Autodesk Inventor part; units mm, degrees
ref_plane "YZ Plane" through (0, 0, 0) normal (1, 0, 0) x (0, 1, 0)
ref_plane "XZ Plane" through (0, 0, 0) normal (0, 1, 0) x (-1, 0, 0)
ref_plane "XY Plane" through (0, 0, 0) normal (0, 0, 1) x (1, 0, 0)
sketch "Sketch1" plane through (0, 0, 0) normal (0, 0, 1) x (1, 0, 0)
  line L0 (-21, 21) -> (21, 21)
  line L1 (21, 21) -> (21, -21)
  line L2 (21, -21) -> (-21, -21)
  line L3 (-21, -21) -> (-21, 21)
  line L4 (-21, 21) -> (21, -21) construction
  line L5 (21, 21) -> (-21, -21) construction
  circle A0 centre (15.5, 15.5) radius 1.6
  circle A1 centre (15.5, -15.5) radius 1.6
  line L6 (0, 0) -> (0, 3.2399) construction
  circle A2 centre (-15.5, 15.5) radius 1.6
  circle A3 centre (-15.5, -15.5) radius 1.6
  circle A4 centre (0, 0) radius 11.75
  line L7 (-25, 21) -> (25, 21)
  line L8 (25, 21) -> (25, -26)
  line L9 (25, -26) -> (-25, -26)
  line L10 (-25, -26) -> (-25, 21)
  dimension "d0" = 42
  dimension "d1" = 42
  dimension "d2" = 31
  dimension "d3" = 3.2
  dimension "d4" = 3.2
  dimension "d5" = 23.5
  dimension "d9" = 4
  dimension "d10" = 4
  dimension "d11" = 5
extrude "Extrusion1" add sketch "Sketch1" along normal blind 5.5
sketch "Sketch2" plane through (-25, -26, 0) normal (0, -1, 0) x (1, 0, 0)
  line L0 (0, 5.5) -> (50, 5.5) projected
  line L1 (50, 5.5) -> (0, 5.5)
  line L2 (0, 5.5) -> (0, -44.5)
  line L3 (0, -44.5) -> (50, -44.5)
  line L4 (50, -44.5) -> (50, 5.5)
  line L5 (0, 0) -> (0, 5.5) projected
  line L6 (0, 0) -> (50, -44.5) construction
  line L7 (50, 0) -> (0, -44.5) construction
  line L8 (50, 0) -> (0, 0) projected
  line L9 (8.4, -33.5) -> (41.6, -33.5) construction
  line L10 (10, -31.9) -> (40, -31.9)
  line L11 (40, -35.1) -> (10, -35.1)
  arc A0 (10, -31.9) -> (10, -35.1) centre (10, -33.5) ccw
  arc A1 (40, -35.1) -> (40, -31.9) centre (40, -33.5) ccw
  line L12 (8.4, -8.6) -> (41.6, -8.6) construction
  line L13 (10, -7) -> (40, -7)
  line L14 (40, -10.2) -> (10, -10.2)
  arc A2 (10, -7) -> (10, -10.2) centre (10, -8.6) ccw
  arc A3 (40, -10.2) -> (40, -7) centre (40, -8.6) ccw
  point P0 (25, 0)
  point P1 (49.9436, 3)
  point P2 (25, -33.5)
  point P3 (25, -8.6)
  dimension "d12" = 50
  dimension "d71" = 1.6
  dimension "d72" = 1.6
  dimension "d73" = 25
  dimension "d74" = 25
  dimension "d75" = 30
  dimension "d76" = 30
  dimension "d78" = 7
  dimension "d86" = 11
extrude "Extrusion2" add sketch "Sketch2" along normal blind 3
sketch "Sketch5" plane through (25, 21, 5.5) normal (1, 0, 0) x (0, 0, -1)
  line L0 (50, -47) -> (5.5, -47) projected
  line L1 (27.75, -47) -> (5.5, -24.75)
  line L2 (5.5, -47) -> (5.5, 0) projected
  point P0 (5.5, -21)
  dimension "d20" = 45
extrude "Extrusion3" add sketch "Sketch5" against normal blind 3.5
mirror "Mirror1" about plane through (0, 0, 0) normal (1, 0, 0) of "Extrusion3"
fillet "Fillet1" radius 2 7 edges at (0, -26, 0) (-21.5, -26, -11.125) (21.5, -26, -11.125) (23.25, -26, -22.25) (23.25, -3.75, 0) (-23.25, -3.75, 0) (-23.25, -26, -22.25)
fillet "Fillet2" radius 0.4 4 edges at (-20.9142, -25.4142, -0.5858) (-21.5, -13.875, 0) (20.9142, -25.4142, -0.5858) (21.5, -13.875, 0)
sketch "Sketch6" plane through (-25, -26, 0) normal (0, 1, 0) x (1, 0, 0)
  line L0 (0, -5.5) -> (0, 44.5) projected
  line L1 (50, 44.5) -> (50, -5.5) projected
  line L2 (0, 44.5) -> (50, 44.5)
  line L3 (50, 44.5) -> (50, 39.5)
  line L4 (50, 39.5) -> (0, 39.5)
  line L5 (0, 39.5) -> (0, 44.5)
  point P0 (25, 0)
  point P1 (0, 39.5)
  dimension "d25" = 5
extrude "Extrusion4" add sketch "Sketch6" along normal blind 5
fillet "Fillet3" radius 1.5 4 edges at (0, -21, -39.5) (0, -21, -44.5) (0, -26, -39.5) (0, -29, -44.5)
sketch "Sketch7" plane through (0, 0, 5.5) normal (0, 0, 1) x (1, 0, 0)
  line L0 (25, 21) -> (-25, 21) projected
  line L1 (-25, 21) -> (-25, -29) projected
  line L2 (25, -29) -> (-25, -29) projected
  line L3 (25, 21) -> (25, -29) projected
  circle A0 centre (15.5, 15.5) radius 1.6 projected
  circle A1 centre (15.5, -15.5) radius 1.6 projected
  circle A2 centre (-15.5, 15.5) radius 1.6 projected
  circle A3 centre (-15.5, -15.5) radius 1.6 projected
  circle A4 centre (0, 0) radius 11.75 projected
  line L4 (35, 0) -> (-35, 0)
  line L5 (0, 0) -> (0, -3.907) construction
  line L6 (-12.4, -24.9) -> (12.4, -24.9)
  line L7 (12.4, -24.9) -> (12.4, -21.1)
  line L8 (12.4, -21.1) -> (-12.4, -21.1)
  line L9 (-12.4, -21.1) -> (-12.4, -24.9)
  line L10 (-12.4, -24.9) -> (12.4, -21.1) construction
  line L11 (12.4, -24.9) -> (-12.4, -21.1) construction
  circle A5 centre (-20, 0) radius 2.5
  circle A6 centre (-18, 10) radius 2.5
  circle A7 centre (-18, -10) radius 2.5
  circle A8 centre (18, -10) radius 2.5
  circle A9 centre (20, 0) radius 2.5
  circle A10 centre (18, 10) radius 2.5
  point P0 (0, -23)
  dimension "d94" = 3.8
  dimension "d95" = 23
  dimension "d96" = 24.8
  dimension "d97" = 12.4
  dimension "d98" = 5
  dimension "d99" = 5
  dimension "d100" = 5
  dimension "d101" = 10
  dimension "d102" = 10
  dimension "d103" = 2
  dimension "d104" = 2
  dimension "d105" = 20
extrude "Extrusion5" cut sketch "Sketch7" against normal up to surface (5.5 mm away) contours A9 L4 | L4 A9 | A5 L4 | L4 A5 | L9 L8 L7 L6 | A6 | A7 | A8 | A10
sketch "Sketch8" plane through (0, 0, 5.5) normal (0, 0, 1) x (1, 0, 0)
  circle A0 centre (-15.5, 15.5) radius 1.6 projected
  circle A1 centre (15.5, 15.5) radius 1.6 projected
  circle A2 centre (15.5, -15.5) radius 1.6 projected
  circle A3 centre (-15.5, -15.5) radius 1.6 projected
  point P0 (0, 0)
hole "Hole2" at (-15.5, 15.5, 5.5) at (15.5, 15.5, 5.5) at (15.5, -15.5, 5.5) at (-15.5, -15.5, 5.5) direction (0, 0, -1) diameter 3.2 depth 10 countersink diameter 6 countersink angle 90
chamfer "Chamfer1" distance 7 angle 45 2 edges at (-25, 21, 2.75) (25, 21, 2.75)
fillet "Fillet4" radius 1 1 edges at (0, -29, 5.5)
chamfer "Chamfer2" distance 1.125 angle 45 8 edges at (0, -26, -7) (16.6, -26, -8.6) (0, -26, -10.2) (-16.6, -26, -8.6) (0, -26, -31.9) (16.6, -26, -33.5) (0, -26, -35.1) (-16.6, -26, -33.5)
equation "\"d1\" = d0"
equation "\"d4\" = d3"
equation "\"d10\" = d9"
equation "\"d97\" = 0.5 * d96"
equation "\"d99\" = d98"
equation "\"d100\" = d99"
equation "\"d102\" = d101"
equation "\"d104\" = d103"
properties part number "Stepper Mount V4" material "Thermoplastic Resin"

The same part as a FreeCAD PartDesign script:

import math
import FreeCAD as App
import Part
import Sketcher
from FreeCAD import Vector


def edges_at(feature, points):
    """Names of the edges that pass closest to the given points."""
    edges = feature.Shape.Edges
    near = lambda p: min(range(len(edges)), key=lambda i: edges[i].distToShape(Part.Vertex(*p))[0])
    return sorted({f"Edge{near(p) + 1}" for p in points})


def add_polygon(sketch, points):
    """Adds a closed chain of lines whose ends are joined by coincident constraints."""
    first, n = sketch.GeometryCount, len(points)
    for a, b in zip(points, points[1:] + points[:1]):
        sketch.addGeometry(Part.LineSegment(App.Vector(*a, 0), App.Vector(*b, 0)), False)
    for i in range(n):
        sketch.addConstraint(Sketcher.Constraint("Coincident", first + i, 2, first + (i + 1) % n, 1))

doc = App.newDocument("Part")
body = doc.addObject("PartDesign::Body", "Body")

# Sketch on XY plane
sketch1 = body.newObject("Sketcher::SketchObject", "Sketch")
sketch1.AttachmentSupport = (doc.getObject("XY_Plane"), [""])
sketch1.MapMode = "FlatFace"
add_polygon(sketch1, [(-25, 21), (-25, -26), (25, -26), (25, 21)])  # lines 0-3
sketch1.addGeometry(Part.Circle(Vector(-15.5, -15.5, 0), Vector(0, 0, 1), 1.6), False)  # 4
sketch1.addGeometry(Part.Circle(Vector(15.5, -15.5, 0), Vector(0, 0, 1), 1.6), False)  # 5
sketch1.addGeometry(Part.Circle(Vector(-15.5, 15.5, 0), Vector(0, 0, 1), 1.6), False)  # 6
sketch1.addGeometry(Part.Circle(Vector(0, 0, 0), Vector(0, 0, 1), 11.8), False)  # 7
sketch1.addGeometry(Part.Circle(Vector(15.5, 15.5, 0), Vector(0, 0, 1), 1.6), False)  # 8
sketch1.addConstraint([
    Sketcher.Constraint("Vertical", 0),
    Sketcher.Constraint("Horizontal", 1),
    Sketcher.Constraint("Vertical", 2),
    Sketcher.Constraint("Horizontal", 3),
    Sketcher.Constraint("Coincident", 7, 3, -1, 1),
    Sketcher.Constraint("Equal", 4, 5),
    Sketcher.Constraint("Equal", 5, 6),
    Sketcher.Constraint("Equal", 6, 8),
    Sketcher.Constraint("Symmetric", 5, 3, 6, 3, -1, 1),
    Sketcher.Constraint("Symmetric", 4, 3, 8, 3, -1, 1),
    Sketcher.Constraint("Symmetric", 4, 3, 5, 3, -2),
    Sketcher.Constraint("Diameter", 4, 3.2),
    Sketcher.Constraint("Diameter", 7, 23.5),
    Sketcher.Constraint("DistanceX", 4, 3, 5, 3, 31.0),
    Sketcher.Constraint("DistanceY", 4, 3, 6, 3, 31.0),
    Sketcher.Constraint("DistanceX", 1, 1, 1, 2, 50.0),
    Sketcher.Constraint("DistanceY", 0, 2, 0, 1, 47.0),
    Sketcher.Constraint("DistanceX", 0, 2, -1, 1, 25.0),
    Sketcher.Constraint("DistanceY", 0, 2, -1, 1, 26.0),
])
pad1 = body.newObject("PartDesign::Pad", "Pad")
pad1.Profile = sketch1
pad1.Length = 5.5

# Sketch on XZ plane
sketch2 = body.newObject("Sketcher::SketchObject", "Sketch001")
sketch2.AttachmentSupport = (doc.getObject("XZ_Plane"), [""])
sketch2.MapMode = "FlatFace"
sketch2.AttachmentOffset = App.Placement(Vector(0, 0, 26), App.Rotation())
add_polygon(sketch2, [(25, 5.5), (-25, 5.5), (-25, -44.5), (25, -44.5)])  # lines 0-3
sketch2.addGeometry(Part.LineSegment(Vector(-15, -7, 0), Vector(15, -7, 0)), False)  # 4
sketch2.addGeometry(Part.ArcOfCircle(Part.Circle(Vector(15, -8.6, 0), Vector(0, 0, 1), 1.6), math.radians(-90), math.radians(90)), False)  # 5
sketch2.addGeometry(Part.LineSegment(Vector(15, -10.2, 0), Vector(-15, -10.2, 0)), False)  # 6
sketch2.addGeometry(Part.ArcOfCircle(Part.Circle(Vector(-15, -8.6, 0), Vector(0, 0, 1), 1.6), math.radians(90), math.radians(270)), False)  # 7
sketch2.addGeometry(Part.ArcOfCircle(Part.Circle(Vector(-15, -33.5, 0), Vector(0, 0, 1), 1.6), math.radians(90), math.radians(270)), False)  # 8
sketch2.addGeometry(Part.LineSegment(Vector(-15, -31.9, 0), Vector(15, -31.9, 0)), False)  # 9
sketch2.addGeometry(Part.ArcOfCircle(Part.Circle(Vector(15, -33.5, 0), Vector(0, 0, 1), 1.6), math.radians(-90), math.radians(90)), False)  # 10
sketch2.addGeometry(Part.LineSegment(Vector(15, -35.1, 0), Vector(-15, -35.1, 0)), False)  # 11
sketch2.addConstraint([
    Sketcher.Constraint("Tangent", 4, 2, 5, 2),
    Sketcher.Constraint("Tangent", 5, 1, 6, 1),
    Sketcher.Constraint("Tangent", 6, 2, 7, 2),
    Sketcher.Constraint("Tangent", 7, 1, 4, 1),
    Sketcher.Constraint("Tangent", 8, 1, 9, 1),
    Sketcher.Constraint("Tangent", 9, 2, 10, 2),
    Sketcher.Constraint("Tangent", 10, 1, 11, 1),
    Sketcher.Constraint("Tangent", 11, 2, 8, 2),
    Sketcher.Constraint("Horizontal", 0),
    Sketcher.Constraint("Vertical", 1),
    Sketcher.Constraint("Horizontal", 2),
    Sketcher.Constraint("Vertical", 3),
    Sketcher.Constraint("Horizontal", 4),
    Sketcher.Constraint("Horizontal", 6),
    Sketcher.Constraint("Horizontal", 9),
    Sketcher.Constraint("Horizontal", 11),
    Sketcher.Constraint("Equal", 7, 8),
    Sketcher.Constraint("Vertical", 7, 3, 8, 3),
    Sketcher.Constraint("Vertical", 5, 3, 10, 3),
    Sketcher.Constraint("Equal", 2, 1),
    Sketcher.Constraint("Radius", 5, 1.6),
    Sketcher.Constraint("DistanceX", 0, 2, 0, 1, 50.0),
    Sketcher.Constraint("DistanceX", 4, 1, 4, 2, 30.0),
    Sketcher.Constraint("DistanceX", 0, 2, -1, 1, 25.0),
    Sketcher.Constraint("DistanceY", 4, 2, -1, 1, 7.0),
    Sketcher.Constraint("DistanceY", 1, 2, 8, 3, 11.0),
    Sketcher.Constraint("DistanceX", -1, 1, 5, 3, 15.0),
    Sketcher.Constraint("DistanceY", 8, 3, -1, 1, 33.5),
])
pad2 = body.newObject("PartDesign::Pad", "Pad001")
pad2.Profile = sketch2
pad2.Length = 3

# Sketch on YZ plane
sketch3 = body.newObject("Sketcher::SketchObject", "Sketch002")
sketch3.AttachmentSupport = (doc.getObject("YZ_Plane"), [""])
sketch3.MapMode = "FlatFace"
sketch3.AttachmentOffset = App.Placement(Vector(0, 0, 25), App.Rotation())
add_polygon(sketch3, [(-26, 0), (-26, -22), (-4, 0)])  # lines 0-2
sketch3.addConstraint([
    Sketcher.Constraint("Vertical", 0),
    Sketcher.Constraint("Horizontal", 2),
    Sketcher.Constraint("PointOnObject", 1, 2, -1),
    Sketcher.Constraint("Equal", 2, 0),
    Sketcher.Constraint("DistanceX", 0, 2, -1, 1, 26.0),
    Sketcher.Constraint("DistanceX", 2, 2, 2, 1, 22.25),
])
pad3 = body.newObject("PartDesign::Pad", "Pad002")
pad3.Profile = sketch3
pad3.Length = 3.5
pad3.Reversed = True
doc.recompute()

mirrored = body.newObject("PartDesign::Mirrored", "Mirrored")
mirrored.Originals = [pad3]
mirrored.MirrorPlane = (doc.getObject("YZ_Plane"), [""])
body.Tip = mirrored
doc.recompute()

fillet = body.newObject("PartDesign::Fillet", "Fillet")
fillet.Base = (mirrored, edges_at(mirrored, [
    (0, -26, 0),
    (-21.5, -26, -11.125),
    (21.5, -26, -11.125),
    (23.25, -26, -22.25),
    (23.25, -3.75, 0),
    (-23.25, -3.75, 0),
    (-23.25, -26, -22.25),
]))
fillet.Radius = 2
doc.recompute()

fillet2 = body.newObject("PartDesign::Fillet", "Fillet001")
fillet2.Base = (fillet, edges_at(fillet, [
    (-20.914, -25.414, -0.586),
    (-21.5, -13.875, 0),
    (20.914, -25.414, -0.586),
    (21.5, -13.875, 0),
]))
fillet2.Radius = 0.4

# Sketch on XZ plane
sketch4 = body.newObject("Sketcher::SketchObject", "Sketch003")
sketch4.AttachmentSupport = (doc.getObject("XZ_Plane"), [""])
sketch4.MapMode = "FlatFace"
sketch4.AttachmentOffset = App.Placement(Vector(0, 0, 26), App.Rotation())
add_polygon(sketch4, [(-25, -44), (-25, -40), (25, -40), (25, -44)])  # lines 0-3
sketch4.addConstraint([
    Sketcher.Constraint("Vertical", 0),
    Sketcher.Constraint("Horizontal", 1),
    Sketcher.Constraint("Vertical", 2),
    Sketcher.Constraint("Horizontal", 3),
    Sketcher.Constraint("DistanceY", 0, 1, 0, 2, 5.0),
    Sketcher.Constraint("DistanceX", 1, 1, 1, 2, 50.0),
    Sketcher.Constraint("DistanceX", 0, 2, -1, 1, 25.0),
    Sketcher.Constraint("DistanceY", 0, 2, -1, 1, 39.5),
])
pad4 = body.newObject("PartDesign::Pad", "Pad003")
pad4.Profile = sketch4
pad4.Length = 5
pad4.Reversed = True
doc.recompute()

fillet3 = body.newObject("PartDesign::Fillet", "Fillet002")
fillet3.Base = (pad4, edges_at(pad4, [
    (0, -21, -39.5),
    (0, -21, -44.5),
    (0, -26, -39.5),
    (0, -29, -44.5),
]))
fillet3.Radius = 1.5

# Sketch on XY plane
sketch5 = body.newObject("Sketcher::SketchObject", "Sketch004")
sketch5.AttachmentSupport = (doc.getObject("XY_Plane"), [""])
sketch5.MapMode = "FlatFace"
sketch5.AttachmentOffset = App.Placement(Vector(0, 0, 5.5), App.Rotation())
sketch5.addGeometry(Part.Circle(Vector(20, 0, 0), Vector(0, 0, 1), 2.5), False)  # 0
sketch5.addGeometry(Part.Circle(Vector(-20, 0, 0), Vector(0, 0, 1), 2.5), False)  # 1
add_polygon(sketch5, [(-12.4, -21.1), (-12.4, -24.9), (12.4, -24.9), (12.4, -21.1)])  # lines 2-5
sketch5.addGeometry(Part.Circle(Vector(-18, 10, 0), Vector(0, 0, 1), 2.5), False)  # 6
sketch5.addGeometry(Part.Circle(Vector(-18, -10, 0), Vector(0, 0, 1), 2.5), False)  # 7
sketch5.addGeometry(Part.Circle(Vector(18, -10, 0), Vector(0, 0, 1), 2.5), False)  # 8
sketch5.addGeometry(Part.Circle(Vector(18, 10, 0), Vector(0, 0, 1), 2.5), False)  # 9
sketch5.addConstraint([
    Sketcher.Constraint("Vertical", 2),
    Sketcher.Constraint("Horizontal", 3),
    Sketcher.Constraint("Vertical", 4),
    Sketcher.Constraint("Horizontal", 5),
    Sketcher.Constraint("Equal", 0, 1),
    Sketcher.Constraint("Equal", 1, 6),
    Sketcher.Constraint("Equal", 6, 7),
    Sketcher.Constraint("Equal", 7, 8),
    Sketcher.Constraint("Equal", 8, 9),
    Sketcher.Constraint("Symmetric", 0, 3, 1, 3, -1, 1),
    Sketcher.Constraint("Symmetric", 6, 3, 8, 3, -1, 1),
    Sketcher.Constraint("Symmetric", 7, 3, 9, 3, -1, 1),
    Sketcher.Constraint("Symmetric", 7, 3, 8, 3, -2),
    Sketcher.Constraint("PointOnObject", 0, 3, -1),
    Sketcher.Constraint("Diameter", 0, 5.0),
    Sketcher.Constraint("DistanceX", 3, 1, 3, 2, 24.8),
    Sketcher.Constraint("DistanceY", 2, 2, 2, 1, 3.8),
    Sketcher.Constraint("DistanceX", -1, 1, 0, 3, 20.0),
    Sketcher.Constraint("DistanceY", -1, 1, 6, 3, 10.0),
    Sketcher.Constraint("DistanceX", 1, 3, 6, 3, 2.0),
    Sketcher.Constraint("DistanceX", 2, 2, -1, 1, 12.4),
    Sketcher.Constraint("DistanceY", 2, 2, -1, 1, 24.9),
])
pocket1 = body.newObject("PartDesign::Pocket", "Pocket")
pocket1.Profile = sketch5
pocket1.Length = 5.5

# Sketch on XY plane
sketch6 = body.newObject("Sketcher::SketchObject", "Sketch005")
sketch6.AttachmentSupport = (doc.getObject("XY_Plane"), [""])
sketch6.MapMode = "FlatFace"
sketch6.AttachmentOffset = App.Placement(Vector(0, 0, 5.5), App.Rotation())
sketch6.addGeometry([
    Part.Circle(Vector(-15.5, 15.5, 0), Vector(0, 0, 1), 1.6),
    Part.Circle(Vector(15.5, 15.5, 0), Vector(0, 0, 1), 1.6),
    Part.Circle(Vector(15.5, -15.5, 0), Vector(0, 0, 1), 1.6),
    Part.Circle(Vector(-15.5, -15.5, 0), Vector(0, 0, 1), 1.6),
], False)
sketch6.addConstraint([
    Sketcher.Constraint("Equal", 0, 1),
    Sketcher.Constraint("Equal", 1, 2),
    Sketcher.Constraint("Equal", 2, 3),
    Sketcher.Constraint("Symmetric", 0, 3, 2, 3, -1, 1),
    Sketcher.Constraint("Symmetric", 1, 3, 3, 3, -1, 1),
    Sketcher.Constraint("Symmetric", 0, 3, 1, 3, -2),
    Sketcher.Constraint("Diameter", 0, 3.2),
    Sketcher.Constraint("DistanceX", 0, 3, 1, 3, 31.0),
    Sketcher.Constraint("DistanceY", 2, 3, 1, 3, 31.0),
])
doc.recompute()
hole = body.newObject("PartDesign::Hole", "Hole")
hole.Profile = sketch6
hole.ThreadType = "None"
hole.Diameter = 3.2
hole.DepthType = "Dimension"
hole.Depth = 10
hole.DrillPoint = "Flat"
hole.HoleCutType = "Countersink"
hole.HoleCutDiameter = 6
hole.HoleCutCountersinkAngle = 90
doc.recompute()

chamfer = body.newObject("PartDesign::Chamfer", "Chamfer")
chamfer.Base = (hole, edges_at(hole, [(-25, 21, 2.75), (25, 21, 2.75)]))
chamfer.Size = 7
doc.recompute()

fillet4 = body.newObject("PartDesign::Fillet", "Fillet003")
fillet4.Base = (chamfer, edges_at(chamfer, [(0, -29, 5.5)]))
fillet4.Radius = 1
doc.recompute()

chamfer2 = body.newObject("PartDesign::Chamfer", "Chamfer001")
chamfer2.Base = (fillet4, edges_at(fillet4, [
    (0, -26, -7),
    (16.6, -26, -8.6),
    (0, -26, -10.2),
    (-16.6, -26, -8.6),
    (0, -26, -31.9),
    (16.6, -26, -33.5),
    (0, -26, -35.1),
    (-16.6, -26, -33.5),
]))
chamfer2.Size = 1.125

doc.recompute()
